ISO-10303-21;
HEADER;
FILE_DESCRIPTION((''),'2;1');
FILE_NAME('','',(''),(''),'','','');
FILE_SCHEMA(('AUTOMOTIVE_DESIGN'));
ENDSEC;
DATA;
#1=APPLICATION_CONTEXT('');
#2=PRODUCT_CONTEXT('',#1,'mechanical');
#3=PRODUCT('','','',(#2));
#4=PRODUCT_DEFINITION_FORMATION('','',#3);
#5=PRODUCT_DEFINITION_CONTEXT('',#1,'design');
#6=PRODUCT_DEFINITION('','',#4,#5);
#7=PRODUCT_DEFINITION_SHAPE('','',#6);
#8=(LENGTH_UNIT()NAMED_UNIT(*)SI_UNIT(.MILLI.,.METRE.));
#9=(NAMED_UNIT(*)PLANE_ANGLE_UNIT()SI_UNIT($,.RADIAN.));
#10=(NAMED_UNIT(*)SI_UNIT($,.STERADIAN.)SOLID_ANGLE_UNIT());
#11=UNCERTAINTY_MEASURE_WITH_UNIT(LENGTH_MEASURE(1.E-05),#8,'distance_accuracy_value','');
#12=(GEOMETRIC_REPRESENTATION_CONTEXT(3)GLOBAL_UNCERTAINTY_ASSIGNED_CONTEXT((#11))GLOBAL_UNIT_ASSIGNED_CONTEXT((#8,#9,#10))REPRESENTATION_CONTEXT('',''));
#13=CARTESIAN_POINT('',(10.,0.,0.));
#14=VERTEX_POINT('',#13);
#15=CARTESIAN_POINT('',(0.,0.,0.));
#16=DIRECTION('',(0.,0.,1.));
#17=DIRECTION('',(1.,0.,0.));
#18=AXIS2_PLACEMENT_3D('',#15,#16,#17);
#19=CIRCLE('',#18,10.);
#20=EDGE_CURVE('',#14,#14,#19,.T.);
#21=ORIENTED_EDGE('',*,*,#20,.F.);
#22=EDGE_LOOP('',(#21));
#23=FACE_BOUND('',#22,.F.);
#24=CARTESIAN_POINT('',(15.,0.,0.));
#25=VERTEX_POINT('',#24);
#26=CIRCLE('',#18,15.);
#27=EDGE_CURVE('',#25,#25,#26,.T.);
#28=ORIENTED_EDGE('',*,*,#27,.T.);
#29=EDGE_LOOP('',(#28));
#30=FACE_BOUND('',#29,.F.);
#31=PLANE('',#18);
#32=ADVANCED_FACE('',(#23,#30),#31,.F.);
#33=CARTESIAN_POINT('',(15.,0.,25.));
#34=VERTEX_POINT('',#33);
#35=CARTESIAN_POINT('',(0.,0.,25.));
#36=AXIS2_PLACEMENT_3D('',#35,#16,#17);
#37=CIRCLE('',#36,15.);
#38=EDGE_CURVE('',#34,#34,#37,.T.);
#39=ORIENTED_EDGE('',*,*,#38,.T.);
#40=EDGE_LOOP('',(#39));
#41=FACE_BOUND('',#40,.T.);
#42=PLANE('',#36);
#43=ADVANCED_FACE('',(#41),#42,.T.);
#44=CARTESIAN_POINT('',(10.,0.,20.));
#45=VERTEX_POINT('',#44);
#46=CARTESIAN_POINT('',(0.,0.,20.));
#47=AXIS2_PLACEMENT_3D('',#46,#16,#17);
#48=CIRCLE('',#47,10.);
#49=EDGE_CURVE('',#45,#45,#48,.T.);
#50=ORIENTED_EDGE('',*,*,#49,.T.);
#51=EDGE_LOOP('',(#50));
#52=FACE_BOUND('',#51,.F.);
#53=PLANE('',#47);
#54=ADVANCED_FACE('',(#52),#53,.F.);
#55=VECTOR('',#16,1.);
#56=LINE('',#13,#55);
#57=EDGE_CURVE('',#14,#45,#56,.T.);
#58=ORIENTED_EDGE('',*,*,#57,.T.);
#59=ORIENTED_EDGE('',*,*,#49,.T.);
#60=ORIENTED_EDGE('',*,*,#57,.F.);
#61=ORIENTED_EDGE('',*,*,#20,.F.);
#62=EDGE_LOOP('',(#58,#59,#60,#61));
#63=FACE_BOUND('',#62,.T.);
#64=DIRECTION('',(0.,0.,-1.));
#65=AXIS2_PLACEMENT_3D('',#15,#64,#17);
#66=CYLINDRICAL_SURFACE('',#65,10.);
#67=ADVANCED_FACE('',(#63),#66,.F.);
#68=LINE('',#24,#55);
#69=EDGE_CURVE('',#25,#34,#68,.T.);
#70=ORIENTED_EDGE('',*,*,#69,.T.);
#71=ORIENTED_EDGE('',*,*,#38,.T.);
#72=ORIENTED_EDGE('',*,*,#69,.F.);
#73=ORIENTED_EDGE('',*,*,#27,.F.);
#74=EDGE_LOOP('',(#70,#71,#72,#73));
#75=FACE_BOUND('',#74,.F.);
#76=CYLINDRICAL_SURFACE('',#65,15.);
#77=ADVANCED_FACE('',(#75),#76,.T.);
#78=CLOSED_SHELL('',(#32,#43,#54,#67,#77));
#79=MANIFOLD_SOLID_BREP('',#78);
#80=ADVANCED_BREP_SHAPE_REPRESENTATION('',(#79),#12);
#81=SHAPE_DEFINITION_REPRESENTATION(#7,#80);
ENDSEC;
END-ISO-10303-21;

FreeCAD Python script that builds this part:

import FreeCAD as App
import Part
import Sketcher

V = App.Vector
Q = App.Units.Quantity

doc = App.newDocument("Part")
body = doc.addObject("PartDesign::Body", "Body")

sketch1 = body.newObject("Sketcher::SketchObject", "Sketch")
sketch1.AttachmentSupport = (doc.getObject("XY_Plane"), [""])
sketch1.MapMode = "FlatFace"
sketch1.addGeometry(Part.Circle(V(0, 0, 0), V(0, 0, 1), 15), False)
sketch1.addConstraint(Sketcher.Constraint("Coincident", 0, 3, -1, 1))
sketch1.addConstraint(Sketcher.Constraint("Diameter", 0, Q("30 mm")))
pad1 = body.newObject("PartDesign::Pad", "Pad")
pad1.Profile = sketch1
pad1.Length = 25

sketch2 = body.newObject("Sketcher::SketchObject", "Sketch001")
sketch2.AttachmentSupport = (doc.getObject("XY_Plane"), [""])
sketch2.MapMode = "FlatFace"
sketch2.addGeometry(Part.Circle(V(0, 0, 0), V(0, 0, 1), 10), False)
sketch2.addConstraint(Sketcher.Constraint("Coincident", 0, 3, -1, 1))
sketch2.addConstraint(Sketcher.Constraint("Diameter", 0, Q("20 mm")))
pocket1 = body.newObject("PartDesign::Pocket", "Pocket")
pocket1.Profile = sketch2
pocket1.Length = 20
pocket1.Reversed = True

doc.recompute()
